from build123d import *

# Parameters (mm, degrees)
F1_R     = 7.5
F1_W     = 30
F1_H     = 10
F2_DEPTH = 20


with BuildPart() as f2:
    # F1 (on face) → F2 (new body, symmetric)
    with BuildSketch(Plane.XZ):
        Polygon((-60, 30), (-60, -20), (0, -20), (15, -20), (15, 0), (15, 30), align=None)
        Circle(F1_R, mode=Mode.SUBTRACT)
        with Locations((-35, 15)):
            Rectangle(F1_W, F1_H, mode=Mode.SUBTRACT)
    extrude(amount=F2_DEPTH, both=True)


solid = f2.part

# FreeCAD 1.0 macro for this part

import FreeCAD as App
import Part
import Sketcher

V = App.Vector


def add_polygon(sketch, points):
    """Adds a closed chain of lines whose ends are joined by coincident constraints."""
    first, n = sketch.GeometryCount, len(points)
    for a, b in zip(points, points[1:] + points[:1]):
        sketch.addGeometry(Part.LineSegment(App.Vector(*a, 0), App.Vector(*b, 0)), False)
    for i in range(n):
        sketch.addConstraint(Sketcher.Constraint("Coincident", first + i, 2, first + (i + 1) % n, 1))

doc = App.newDocument("Part")
body = doc.addObject("PartDesign::Body", "Body")

# Sketch on XZ plane
sketch1 = body.newObject("Sketcher::SketchObject", "Sketch")
sketch1.AttachmentSupport = (doc.getObject("XZ_Plane"), [""])
sketch1.MapMode = "FlatFace"
add_polygon(sketch1, [(-60, 30), (-60, -20), (15, -20), (15, 30)])  # lines 0-3
sketch1.addGeometry(Part.Circle(V(0, 0, 0), V(0, 0, 1), 7.5), False)  # 4
add_polygon(sketch1, [(-20, 10), (-50, 10), (-50, 20), (-20, 20)])  # lines 5-8
sketch1.addConstraint(Sketcher.Constraint("Vertical", 0))
sketch1.addConstraint(Sketcher.Constraint("Horizontal", 1))
sketch1.addConstraint(Sketcher.Constraint("Vertical", 2))
sketch1.addConstraint(Sketcher.Constraint("Horizontal", 3))
sketch1.addConstraint(Sketcher.Constraint("Horizontal", 5))
sketch1.addConstraint(Sketcher.Constraint("Vertical", 6))
sketch1.addConstraint(Sketcher.Constraint("Horizontal", 7))
sketch1.addConstraint(Sketcher.Constraint("Vertical", 8))
sketch1.addConstraint(Sketcher.Constraint("Coincident", 4, 3, -1, 1))
sketch1.addConstraint(Sketcher.Constraint("Diameter", 4, 15.0))
sketch1.addConstraint(Sketcher.Constraint("DistanceX", 1, 1, 1, 2, 75.0))
sketch1.addConstraint(Sketcher.Constraint("DistanceX", 5, 2, 5, 1, 30.0))
sketch1.addConstraint(Sketcher.Constraint("DistanceY", 0, 2, 0, 1, 50.0))
sketch1.addConstraint(Sketcher.Constraint("DistanceY", 6, 1, 6, 2, 10.0))
sketch1.addConstraint(Sketcher.Constraint("DistanceX", 0, 2, -1, 1, 60.0))
sketch1.addConstraint(Sketcher.Constraint("DistanceY", 0, 2, -1, 1, 20.0))
sketch1.addConstraint(Sketcher.Constraint("DistanceX", 5, 2, -1, 1, 50.0))
sketch1.addConstraint(Sketcher.Constraint("DistanceY", -1, 1, 5, 2, 10.0))
pad1 = body.newObject("PartDesign::Pad", "Pad")
pad1.Profile = sketch1
pad1.Length = 40
pad1.Midplane = True

doc.recompute()
